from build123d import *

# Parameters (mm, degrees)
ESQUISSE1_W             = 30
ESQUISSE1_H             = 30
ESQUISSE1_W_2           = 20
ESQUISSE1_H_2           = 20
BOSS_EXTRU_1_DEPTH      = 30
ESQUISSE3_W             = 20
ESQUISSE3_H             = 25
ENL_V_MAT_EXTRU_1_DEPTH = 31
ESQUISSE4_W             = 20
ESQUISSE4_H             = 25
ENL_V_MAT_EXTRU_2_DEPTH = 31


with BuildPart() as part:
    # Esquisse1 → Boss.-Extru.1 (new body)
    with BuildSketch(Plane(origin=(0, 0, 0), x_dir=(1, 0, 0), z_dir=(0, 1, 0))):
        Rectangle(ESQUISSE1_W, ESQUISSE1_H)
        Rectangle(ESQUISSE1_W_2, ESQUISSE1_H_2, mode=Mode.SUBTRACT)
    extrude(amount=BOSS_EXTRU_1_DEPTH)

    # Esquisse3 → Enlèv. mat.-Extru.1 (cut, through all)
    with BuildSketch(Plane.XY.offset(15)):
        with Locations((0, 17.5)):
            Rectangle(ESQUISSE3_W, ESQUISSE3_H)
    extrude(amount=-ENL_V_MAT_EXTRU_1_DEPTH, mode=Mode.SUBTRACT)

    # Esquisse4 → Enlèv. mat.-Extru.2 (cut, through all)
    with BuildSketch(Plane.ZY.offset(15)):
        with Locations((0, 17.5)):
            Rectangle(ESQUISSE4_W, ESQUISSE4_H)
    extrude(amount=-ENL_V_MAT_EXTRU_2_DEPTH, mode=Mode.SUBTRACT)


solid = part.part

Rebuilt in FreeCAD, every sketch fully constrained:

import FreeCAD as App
import Part
import Sketcher

V = App.Vector


def add_polygon(sketch, points):
    """Adds a closed chain of lines whose ends are joined by coincident constraints."""
    first, n = sketch.GeometryCount, len(points)
    for a, b in zip(points, points[1:] + points[:1]):
        sketch.addGeometry(Part.LineSegment(App.Vector(*a, 0), App.Vector(*b, 0)), False)
    for i in range(n):
        sketch.addConstraint(Sketcher.Constraint("Coincident", first + i, 2, first + (i + 1) % n, 1))

doc = App.newDocument("Part")
body = doc.addObject("PartDesign::Body", "Body")

# Sketch on XZ plane
sketch1 = body.newObject("Sketcher::SketchObject", "Sketch")
sketch1.AttachmentSupport = (doc.getObject("XZ_Plane"), [""])
sketch1.MapMode = "FlatFace"
add_polygon(sketch1, [(-15, -15), (-15, 15), (15, 15), (15, -15)])  # lines 0-3
add_polygon(sketch1, [(10, 10), (-10, 10), (-10, -10), (10, -10)])  # lines 4-7
sketch1.addConstraint([
    Sketcher.Constraint("Vertical", 0),
    Sketcher.Constraint("Horizontal", 1),
    Sketcher.Constraint("Vertical", 2),
    Sketcher.Constraint("Horizontal", 3),
    Sketcher.Constraint("Horizontal", 4),
    Sketcher.Constraint("Vertical", 5),
    Sketcher.Constraint("Horizontal", 6),
    Sketcher.Constraint("Vertical", 7),
    Sketcher.Constraint("Symmetric", 0, 2, 2, 2, -1, 1),
    Sketcher.Constraint("Symmetric", 4, 2, 6, 2, -1, 1),
    Sketcher.Constraint("Equal", 3, 0),
    Sketcher.Constraint("Equal", 6, 5),
    Sketcher.Constraint("DistanceX", 1, 1, 1, 2, 30.0),
    Sketcher.Constraint("DistanceX", 4, 2, 4, 1, 20.0),
])
pad1 = body.newObject("PartDesign::Pad", "Pad")
pad1.Profile = sketch1
pad1.Length = 30
pad1.Reversed = True

# Sketch on XY plane
sketch2 = body.newObject("Sketcher::SketchObject", "Sketch001")
sketch2.AttachmentSupport = (doc.getObject("XY_Plane"), [""])
sketch2.MapMode = "FlatFace"
sketch2.AttachmentOffset = App.Placement(V(0, 0, 15), App.Rotation())
add_polygon(sketch2, [(-10, 30), (-10, 5), (10, 5), (10, 30)])  # lines 0-3
sketch2.addConstraint([
    Sketcher.Constraint("Vertical", 0),
    Sketcher.Constraint("Horizontal", 1),
    Sketcher.Constraint("Vertical", 2),
    Sketcher.Constraint("Horizontal", 3),
    Sketcher.Constraint("DistanceX", 1, 1, 1, 2, 20.0),
    Sketcher.Constraint("DistanceY", 0, 2, 0, 1, 25.0),
    Sketcher.Constraint("DistanceX", 0, 2, -1, 1, 10.0),
    Sketcher.Constraint("DistanceY", -1, 1, 0, 2, 5.0),
])
pocket1 = body.newObject("PartDesign::Pocket", "Pocket")
pocket1.Profile = sketch2
pocket1.Type = "ThroughAll"

# Sketch on YZ plane
sketch3 = body.newObject("Sketcher::SketchObject", "Sketch002")
sketch3.AttachmentSupport = (doc.getObject("YZ_Plane"), [""])
sketch3.MapMode = "FlatFace"
sketch3.AttachmentOffset = App.Placement(V(0, 0, -15), App.Rotation())
add_polygon(sketch3, [(30, -10), (5, -10), (5, 10), (30, 10)])  # lines 0-3
sketch3.addConstraint([
    Sketcher.Constraint("Horizontal", 0),
    Sketcher.Constraint("Vertical", 1),
    Sketcher.Constraint("Horizontal", 2),
    Sketcher.Constraint("Vertical", 3),
    Sketcher.Constraint("DistanceX", 0, 2, 0, 1, 25.0),
    Sketcher.Constraint("DistanceY", 1, 1, 1, 2, 20.0),
    Sketcher.Constraint("DistanceX", -1, 1, 0, 2, 5.0),
    Sketcher.Constraint("DistanceY", 0, 2, -1, 1, 10.0),
])
pocket2 = body.newObject("PartDesign::Pocket", "Pocket001")
pocket2.Profile = sketch3
pocket2.Type = "ThroughAll"
pocket2.Reversed = True

doc.recompute()
